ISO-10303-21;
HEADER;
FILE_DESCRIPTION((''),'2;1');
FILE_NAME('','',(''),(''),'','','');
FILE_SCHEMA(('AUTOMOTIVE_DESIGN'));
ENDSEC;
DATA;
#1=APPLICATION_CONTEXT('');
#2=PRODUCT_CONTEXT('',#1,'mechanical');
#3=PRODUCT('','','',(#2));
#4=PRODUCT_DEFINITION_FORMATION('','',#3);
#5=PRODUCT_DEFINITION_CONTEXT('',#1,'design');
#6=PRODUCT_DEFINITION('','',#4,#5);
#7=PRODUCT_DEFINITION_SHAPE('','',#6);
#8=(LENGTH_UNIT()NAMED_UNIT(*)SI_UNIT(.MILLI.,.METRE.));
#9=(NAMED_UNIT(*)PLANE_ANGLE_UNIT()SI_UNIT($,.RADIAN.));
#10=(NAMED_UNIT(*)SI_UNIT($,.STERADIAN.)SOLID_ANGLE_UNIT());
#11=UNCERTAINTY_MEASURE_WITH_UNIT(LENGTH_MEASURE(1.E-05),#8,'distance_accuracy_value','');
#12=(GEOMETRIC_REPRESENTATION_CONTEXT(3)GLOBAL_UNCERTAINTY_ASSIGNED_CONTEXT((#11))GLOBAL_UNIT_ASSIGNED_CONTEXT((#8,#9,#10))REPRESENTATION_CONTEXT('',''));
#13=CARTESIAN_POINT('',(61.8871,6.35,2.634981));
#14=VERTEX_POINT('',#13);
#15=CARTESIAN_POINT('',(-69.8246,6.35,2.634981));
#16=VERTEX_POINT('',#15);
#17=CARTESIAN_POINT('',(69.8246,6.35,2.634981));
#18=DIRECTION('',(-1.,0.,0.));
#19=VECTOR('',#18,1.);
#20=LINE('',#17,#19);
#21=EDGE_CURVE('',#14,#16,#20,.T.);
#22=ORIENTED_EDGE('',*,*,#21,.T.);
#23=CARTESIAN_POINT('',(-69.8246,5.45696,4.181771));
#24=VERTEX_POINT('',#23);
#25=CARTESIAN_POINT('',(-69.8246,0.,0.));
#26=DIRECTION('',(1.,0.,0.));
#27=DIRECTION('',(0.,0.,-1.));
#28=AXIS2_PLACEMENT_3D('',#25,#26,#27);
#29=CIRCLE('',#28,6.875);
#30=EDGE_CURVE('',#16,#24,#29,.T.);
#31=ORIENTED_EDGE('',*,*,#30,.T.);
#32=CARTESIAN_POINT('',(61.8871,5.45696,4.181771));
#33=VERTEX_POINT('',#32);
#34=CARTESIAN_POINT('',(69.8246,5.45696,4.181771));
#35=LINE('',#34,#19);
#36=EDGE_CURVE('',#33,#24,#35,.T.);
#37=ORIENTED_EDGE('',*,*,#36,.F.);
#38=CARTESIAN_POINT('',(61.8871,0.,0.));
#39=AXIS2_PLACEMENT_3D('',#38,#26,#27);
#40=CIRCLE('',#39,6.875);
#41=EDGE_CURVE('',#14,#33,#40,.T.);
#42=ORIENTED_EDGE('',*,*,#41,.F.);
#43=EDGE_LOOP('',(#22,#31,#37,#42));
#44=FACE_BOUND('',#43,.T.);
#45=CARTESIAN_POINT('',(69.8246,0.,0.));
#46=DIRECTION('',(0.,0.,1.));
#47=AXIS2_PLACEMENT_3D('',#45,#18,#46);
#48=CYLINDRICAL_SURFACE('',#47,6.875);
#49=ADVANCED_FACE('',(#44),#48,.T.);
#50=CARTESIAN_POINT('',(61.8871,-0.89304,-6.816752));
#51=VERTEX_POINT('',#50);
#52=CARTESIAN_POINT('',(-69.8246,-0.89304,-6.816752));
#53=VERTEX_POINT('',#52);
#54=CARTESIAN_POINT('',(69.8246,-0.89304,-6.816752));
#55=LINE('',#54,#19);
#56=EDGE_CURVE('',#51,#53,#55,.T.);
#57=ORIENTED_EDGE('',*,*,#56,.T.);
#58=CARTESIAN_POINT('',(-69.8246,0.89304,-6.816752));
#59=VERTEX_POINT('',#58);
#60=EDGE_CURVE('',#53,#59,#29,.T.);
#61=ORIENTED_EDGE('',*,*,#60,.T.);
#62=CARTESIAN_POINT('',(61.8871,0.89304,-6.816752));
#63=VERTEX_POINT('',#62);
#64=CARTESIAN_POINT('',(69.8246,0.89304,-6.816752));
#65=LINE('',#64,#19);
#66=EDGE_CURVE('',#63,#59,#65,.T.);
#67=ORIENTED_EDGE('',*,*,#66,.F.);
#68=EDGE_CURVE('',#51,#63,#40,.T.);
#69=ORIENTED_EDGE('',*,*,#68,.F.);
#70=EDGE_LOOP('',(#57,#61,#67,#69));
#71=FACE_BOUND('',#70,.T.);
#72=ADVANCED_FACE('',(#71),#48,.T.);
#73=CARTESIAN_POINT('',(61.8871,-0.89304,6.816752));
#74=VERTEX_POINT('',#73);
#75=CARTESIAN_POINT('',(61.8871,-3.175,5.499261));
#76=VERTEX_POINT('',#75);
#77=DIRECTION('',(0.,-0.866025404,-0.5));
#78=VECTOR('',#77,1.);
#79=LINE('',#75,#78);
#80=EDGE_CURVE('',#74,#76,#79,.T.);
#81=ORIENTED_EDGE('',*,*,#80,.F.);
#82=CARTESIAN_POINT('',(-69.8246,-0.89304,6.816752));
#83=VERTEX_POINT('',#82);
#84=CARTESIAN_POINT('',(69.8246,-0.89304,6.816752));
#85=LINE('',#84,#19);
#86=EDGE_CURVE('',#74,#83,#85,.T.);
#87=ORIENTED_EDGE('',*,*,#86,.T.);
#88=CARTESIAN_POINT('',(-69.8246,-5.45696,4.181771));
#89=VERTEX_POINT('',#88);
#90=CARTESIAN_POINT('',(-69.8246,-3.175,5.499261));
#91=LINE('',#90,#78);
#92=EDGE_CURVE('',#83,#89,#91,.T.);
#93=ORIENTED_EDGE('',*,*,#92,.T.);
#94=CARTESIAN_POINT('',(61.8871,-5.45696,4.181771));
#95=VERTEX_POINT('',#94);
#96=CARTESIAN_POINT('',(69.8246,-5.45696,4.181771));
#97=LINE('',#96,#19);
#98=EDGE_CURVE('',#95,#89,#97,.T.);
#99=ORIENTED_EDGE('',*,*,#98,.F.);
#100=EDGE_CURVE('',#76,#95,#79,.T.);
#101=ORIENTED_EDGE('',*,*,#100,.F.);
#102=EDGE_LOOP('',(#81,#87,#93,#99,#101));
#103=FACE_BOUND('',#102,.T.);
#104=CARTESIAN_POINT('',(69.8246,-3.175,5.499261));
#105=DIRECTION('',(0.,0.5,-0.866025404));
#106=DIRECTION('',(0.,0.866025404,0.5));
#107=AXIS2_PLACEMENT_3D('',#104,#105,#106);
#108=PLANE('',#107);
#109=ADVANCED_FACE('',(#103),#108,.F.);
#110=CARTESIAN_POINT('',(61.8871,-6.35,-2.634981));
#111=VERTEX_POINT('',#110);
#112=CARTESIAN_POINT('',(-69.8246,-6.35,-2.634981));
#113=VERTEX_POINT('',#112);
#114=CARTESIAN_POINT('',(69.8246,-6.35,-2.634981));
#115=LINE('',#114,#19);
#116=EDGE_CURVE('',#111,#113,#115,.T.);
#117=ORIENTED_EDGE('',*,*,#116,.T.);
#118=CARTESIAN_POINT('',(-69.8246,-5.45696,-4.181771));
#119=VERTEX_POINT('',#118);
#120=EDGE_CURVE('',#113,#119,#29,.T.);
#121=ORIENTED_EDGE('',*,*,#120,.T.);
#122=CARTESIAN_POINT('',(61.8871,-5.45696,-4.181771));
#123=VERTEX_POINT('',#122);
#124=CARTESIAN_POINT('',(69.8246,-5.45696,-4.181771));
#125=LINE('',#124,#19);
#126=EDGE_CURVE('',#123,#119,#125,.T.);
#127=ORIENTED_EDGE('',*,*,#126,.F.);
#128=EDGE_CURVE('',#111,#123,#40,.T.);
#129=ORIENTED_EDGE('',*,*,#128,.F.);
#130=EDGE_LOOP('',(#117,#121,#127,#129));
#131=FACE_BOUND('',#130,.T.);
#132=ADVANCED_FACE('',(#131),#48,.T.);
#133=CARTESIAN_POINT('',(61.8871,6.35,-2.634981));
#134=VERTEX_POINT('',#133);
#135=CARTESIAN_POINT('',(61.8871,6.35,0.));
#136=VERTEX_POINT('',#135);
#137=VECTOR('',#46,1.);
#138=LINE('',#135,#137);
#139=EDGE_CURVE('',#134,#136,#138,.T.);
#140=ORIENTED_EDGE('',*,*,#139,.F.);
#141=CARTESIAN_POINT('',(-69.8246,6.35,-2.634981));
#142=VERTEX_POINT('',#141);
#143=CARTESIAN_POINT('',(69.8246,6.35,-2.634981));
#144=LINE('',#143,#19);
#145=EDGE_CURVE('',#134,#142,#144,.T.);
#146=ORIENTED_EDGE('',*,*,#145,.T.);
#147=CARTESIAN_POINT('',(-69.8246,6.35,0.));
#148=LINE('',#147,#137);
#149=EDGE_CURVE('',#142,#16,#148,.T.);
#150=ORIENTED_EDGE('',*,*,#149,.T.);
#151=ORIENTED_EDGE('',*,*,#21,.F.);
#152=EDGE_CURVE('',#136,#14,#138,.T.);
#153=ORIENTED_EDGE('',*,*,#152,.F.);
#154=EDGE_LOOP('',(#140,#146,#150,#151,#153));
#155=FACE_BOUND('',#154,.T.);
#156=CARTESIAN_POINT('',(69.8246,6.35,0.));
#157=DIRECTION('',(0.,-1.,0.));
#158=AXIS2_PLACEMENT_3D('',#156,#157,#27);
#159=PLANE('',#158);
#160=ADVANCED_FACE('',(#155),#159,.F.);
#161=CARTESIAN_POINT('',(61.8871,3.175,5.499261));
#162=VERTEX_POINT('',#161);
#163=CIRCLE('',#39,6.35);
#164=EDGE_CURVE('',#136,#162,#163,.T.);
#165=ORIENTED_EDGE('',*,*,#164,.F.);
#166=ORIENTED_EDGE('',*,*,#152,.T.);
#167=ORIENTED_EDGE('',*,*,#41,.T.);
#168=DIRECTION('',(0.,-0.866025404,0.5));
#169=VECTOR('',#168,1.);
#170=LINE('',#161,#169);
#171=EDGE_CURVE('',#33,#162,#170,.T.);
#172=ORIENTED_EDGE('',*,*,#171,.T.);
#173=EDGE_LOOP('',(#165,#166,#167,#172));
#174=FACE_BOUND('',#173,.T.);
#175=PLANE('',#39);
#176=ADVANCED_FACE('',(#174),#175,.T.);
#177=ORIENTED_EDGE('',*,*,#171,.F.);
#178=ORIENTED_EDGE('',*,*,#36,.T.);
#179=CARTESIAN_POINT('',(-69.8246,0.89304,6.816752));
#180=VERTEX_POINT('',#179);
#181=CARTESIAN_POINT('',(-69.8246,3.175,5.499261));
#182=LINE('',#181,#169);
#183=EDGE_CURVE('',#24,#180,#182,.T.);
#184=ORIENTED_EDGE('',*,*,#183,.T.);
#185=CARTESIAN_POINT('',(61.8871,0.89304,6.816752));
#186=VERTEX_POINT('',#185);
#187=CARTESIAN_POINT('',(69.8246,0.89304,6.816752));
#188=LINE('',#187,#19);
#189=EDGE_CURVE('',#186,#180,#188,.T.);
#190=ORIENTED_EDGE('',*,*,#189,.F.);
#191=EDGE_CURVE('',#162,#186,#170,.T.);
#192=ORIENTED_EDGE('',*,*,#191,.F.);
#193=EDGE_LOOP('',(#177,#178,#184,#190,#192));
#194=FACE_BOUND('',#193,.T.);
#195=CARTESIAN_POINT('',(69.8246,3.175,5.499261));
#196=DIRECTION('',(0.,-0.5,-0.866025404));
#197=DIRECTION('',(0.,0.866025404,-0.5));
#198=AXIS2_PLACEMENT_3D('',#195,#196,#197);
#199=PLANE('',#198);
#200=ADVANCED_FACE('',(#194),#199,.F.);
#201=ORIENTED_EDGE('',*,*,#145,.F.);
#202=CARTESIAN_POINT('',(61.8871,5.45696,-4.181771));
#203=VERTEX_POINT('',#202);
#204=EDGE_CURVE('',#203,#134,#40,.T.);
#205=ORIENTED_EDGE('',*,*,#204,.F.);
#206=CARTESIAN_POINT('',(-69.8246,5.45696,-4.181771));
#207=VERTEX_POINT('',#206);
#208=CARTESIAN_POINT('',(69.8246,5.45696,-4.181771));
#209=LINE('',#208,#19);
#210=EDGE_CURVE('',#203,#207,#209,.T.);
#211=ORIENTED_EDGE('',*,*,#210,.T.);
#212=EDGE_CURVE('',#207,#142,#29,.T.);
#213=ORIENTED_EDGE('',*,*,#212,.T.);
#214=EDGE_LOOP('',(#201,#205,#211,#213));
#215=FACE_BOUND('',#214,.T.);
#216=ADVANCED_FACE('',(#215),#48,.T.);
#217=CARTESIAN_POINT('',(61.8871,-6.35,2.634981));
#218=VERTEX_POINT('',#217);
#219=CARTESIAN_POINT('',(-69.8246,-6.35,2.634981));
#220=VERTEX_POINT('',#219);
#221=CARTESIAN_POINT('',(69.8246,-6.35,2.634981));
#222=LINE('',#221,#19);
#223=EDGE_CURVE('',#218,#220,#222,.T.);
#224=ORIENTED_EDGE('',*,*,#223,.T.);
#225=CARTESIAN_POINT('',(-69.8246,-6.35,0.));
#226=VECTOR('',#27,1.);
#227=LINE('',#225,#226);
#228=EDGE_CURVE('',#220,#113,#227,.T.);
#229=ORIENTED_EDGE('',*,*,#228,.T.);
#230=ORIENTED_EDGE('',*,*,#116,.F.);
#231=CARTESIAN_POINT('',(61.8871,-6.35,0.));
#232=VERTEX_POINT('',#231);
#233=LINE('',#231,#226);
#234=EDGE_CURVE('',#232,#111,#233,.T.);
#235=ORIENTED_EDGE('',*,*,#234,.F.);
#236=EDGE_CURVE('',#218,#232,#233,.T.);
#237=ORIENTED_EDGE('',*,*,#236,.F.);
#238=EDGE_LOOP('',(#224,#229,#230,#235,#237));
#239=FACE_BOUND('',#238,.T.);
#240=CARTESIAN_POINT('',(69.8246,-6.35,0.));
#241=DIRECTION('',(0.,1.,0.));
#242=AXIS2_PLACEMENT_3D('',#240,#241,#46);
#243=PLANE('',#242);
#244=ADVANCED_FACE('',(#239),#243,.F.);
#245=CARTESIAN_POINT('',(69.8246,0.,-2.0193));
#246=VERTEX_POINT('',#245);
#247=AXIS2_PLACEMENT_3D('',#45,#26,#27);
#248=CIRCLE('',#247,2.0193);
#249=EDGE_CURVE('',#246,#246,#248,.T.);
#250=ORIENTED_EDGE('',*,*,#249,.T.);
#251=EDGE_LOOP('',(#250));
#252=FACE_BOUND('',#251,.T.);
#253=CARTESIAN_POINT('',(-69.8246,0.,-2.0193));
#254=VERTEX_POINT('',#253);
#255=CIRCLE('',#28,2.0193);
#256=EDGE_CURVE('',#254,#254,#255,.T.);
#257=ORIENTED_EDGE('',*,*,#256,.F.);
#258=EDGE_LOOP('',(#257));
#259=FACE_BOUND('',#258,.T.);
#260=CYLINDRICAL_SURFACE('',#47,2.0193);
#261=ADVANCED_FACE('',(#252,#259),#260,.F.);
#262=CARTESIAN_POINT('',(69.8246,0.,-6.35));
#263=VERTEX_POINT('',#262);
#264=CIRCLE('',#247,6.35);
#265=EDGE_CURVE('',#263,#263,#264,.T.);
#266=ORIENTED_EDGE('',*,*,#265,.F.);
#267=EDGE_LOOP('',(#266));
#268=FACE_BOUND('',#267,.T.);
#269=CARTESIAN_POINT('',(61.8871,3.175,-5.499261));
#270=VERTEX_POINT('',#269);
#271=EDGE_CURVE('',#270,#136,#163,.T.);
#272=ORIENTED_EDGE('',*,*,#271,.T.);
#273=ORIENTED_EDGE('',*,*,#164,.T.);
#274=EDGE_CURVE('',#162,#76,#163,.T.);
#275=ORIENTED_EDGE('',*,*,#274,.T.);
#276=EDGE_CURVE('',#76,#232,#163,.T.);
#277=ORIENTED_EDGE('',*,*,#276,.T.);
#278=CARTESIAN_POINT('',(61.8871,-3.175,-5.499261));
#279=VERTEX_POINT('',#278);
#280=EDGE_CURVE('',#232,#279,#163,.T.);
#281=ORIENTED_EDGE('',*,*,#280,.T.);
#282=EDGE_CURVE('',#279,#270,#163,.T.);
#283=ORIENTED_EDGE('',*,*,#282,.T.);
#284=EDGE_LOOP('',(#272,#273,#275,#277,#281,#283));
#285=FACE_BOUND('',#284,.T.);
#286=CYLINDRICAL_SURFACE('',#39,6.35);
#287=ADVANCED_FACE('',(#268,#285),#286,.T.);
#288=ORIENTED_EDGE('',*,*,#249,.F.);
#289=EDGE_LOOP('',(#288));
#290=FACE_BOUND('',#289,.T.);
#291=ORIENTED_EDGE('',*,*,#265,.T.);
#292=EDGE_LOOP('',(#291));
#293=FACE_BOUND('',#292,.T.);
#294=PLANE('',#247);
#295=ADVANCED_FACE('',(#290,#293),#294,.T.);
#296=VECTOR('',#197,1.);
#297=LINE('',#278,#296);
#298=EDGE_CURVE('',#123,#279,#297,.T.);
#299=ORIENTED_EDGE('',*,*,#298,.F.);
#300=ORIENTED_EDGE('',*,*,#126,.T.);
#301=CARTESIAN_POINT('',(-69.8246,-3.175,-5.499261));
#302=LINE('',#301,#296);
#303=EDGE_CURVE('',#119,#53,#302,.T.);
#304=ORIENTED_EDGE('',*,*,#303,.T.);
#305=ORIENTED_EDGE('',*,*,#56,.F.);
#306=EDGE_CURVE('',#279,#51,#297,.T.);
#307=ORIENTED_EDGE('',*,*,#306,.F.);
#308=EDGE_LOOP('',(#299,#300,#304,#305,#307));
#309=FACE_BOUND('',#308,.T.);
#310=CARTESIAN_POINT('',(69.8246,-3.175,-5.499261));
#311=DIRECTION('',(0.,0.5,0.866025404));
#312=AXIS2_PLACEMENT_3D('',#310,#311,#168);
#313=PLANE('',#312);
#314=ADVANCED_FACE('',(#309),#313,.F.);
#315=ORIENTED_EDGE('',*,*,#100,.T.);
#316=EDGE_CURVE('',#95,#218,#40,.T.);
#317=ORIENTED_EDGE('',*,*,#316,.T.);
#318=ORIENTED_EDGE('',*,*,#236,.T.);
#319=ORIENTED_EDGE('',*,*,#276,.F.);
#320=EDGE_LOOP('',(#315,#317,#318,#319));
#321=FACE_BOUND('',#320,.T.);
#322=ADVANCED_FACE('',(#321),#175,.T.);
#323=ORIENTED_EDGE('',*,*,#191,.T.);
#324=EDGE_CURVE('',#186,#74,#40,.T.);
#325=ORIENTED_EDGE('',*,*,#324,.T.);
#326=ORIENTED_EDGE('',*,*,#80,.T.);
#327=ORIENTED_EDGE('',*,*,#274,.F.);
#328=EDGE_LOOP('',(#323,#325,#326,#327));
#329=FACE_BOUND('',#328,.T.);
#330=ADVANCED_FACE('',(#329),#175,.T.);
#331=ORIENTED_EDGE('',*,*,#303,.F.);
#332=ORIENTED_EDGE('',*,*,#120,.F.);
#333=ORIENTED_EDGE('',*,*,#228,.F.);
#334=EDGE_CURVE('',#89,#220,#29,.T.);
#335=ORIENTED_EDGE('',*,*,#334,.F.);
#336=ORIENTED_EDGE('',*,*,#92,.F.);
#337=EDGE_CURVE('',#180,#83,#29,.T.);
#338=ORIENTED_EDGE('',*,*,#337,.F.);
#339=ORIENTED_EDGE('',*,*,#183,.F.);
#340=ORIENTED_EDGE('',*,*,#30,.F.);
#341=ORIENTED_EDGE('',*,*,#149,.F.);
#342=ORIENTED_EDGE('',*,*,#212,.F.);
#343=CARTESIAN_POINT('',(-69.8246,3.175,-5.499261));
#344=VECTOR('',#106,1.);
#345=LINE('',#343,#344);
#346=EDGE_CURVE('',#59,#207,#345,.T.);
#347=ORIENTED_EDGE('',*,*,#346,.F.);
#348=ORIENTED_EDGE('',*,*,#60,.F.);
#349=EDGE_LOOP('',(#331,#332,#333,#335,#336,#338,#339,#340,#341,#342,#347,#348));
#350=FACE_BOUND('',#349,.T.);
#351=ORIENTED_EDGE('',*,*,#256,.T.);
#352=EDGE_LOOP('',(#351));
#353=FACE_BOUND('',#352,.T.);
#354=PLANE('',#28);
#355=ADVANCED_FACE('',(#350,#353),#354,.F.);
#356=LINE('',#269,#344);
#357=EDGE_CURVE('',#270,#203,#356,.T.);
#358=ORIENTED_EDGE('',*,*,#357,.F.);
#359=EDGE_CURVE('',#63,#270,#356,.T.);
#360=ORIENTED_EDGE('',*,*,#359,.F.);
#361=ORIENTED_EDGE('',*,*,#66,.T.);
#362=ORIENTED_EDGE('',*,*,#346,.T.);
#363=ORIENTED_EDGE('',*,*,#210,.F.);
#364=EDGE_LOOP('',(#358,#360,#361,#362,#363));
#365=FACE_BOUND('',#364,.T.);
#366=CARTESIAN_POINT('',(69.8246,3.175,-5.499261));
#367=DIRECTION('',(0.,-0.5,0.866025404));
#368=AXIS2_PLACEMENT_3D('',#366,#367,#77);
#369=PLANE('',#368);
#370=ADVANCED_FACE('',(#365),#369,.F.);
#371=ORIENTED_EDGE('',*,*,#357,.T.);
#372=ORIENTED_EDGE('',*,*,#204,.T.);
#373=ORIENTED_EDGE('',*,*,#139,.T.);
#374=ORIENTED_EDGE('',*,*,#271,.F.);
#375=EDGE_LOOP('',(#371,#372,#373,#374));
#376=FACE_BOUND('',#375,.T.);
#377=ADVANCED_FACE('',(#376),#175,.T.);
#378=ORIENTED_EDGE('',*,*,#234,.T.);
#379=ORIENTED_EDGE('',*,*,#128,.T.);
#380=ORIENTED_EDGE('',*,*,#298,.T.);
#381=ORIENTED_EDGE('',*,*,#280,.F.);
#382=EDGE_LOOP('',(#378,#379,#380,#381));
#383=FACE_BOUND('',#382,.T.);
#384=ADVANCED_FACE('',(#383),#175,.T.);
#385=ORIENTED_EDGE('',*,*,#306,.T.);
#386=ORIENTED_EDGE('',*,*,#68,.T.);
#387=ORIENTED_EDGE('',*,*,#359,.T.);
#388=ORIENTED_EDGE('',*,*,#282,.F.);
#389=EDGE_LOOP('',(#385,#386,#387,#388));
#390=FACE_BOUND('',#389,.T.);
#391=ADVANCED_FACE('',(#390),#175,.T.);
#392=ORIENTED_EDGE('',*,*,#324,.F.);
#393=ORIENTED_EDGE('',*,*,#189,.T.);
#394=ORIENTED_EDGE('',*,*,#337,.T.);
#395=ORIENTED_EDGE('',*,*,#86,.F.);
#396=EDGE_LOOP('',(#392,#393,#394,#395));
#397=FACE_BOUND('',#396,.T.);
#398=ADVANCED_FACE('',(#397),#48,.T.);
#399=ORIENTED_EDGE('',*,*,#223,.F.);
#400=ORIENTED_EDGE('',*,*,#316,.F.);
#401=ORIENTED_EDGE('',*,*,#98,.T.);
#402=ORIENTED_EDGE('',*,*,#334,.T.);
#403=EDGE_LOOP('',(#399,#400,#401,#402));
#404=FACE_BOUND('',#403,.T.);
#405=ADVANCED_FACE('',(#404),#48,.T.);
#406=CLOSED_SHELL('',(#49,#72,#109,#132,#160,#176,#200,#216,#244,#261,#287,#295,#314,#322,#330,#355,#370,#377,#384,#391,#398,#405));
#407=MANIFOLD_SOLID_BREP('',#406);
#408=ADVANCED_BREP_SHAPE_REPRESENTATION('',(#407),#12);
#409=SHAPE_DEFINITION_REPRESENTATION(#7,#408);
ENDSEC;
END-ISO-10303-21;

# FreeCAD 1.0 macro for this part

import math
import FreeCAD as App
import Part
import Sketcher
from FreeCAD import Vector
Q = App.Units.Quantity

doc = App.newDocument("Part")
body = doc.addObject("PartDesign::Body", "Body")

# Sketch on YZ plane
sketch1 = doc.addObject("Sketcher::SketchObject", "Sketch")
body.addObject(sketch1)
sketch1.AttachmentSupport = (doc.YZ_Plane, [""])
sketch1.MapMode = "FlatFace"
sketch1.addGeometry([
    Part.ArcOfCircle(Part.Circle(Vector(0, 0, 0), Vector(0, 0, 1), 6.9), math.radians(-37.46), math.radians(-22.54)),  # 0
    Part.LineSegment(Vector(6.3, -2.6, 0), Vector(6.3, 2.6, 0)),  # 1
    Part.ArcOfCircle(Part.Circle(Vector(0, 0, 0), Vector(0, 0, 1), 6.9), math.radians(22.54), math.radians(37.46)),  # 2
    Part.LineSegment(Vector(5.5, 4.2, 0), Vector(0.9, 6.8, 0)),  # 3
    Part.ArcOfCircle(Part.Circle(Vector(0, 0, 0), Vector(0, 0, 1), 6.9), math.radians(82.54), math.radians(97.46)),  # 4
    Part.LineSegment(Vector(-0.9, 6.8, 0), Vector(-5.5, 4.2, 0)),  # 5
    Part.ArcOfCircle(Part.Circle(Vector(0, 0, 0), Vector(0, 0, 1), 6.9), math.radians(142.54), math.radians(157.46)),  # 6
    Part.LineSegment(Vector(-6.3, 2.6, 0), Vector(-6.3, -2.6, 0)),  # 7
    Part.ArcOfCircle(Part.Circle(Vector(0, 0, 0), Vector(0, 0, 1), 6.9), math.radians(-157.46), math.radians(-142.54)),  # 8
    Part.LineSegment(Vector(-5.5, -4.2, 0), Vector(-0.9, -6.8, 0)),  # 9
    Part.ArcOfCircle(Part.Circle(Vector(0, 0, 0), Vector(0, 0, 1), 6.9), math.radians(-97.46), math.radians(-90)),  # 10
    Part.ArcOfCircle(Part.Circle(Vector(0, 0, 0), Vector(0, 0, 1), 6.9), math.radians(-90), math.radians(-82.54)),  # 11
    Part.LineSegment(Vector(0.9, -6.8, 0), Vector(5.5, -4.2, 0)),  # 12
    Part.Circle(Vector(0, 0, 0), Vector(0, 0, 1), 2),  # 13
], False)
sketch1.addConstraint([
    Sketcher.Constraint("Coincident", 0, 2, 1, 1),
    Sketcher.Constraint("Coincident", 1, 2, 2, 1),
    Sketcher.Constraint("Coincident", 2, 2, 3, 1),
    Sketcher.Constraint("Coincident", 3, 2, 4, 1),
    Sketcher.Constraint("Coincident", 4, 2, 5, 1),
    Sketcher.Constraint("Coincident", 5, 2, 6, 1),
    Sketcher.Constraint("Coincident", 6, 2, 7, 1),
    Sketcher.Constraint("Coincident", 7, 2, 8, 1),
    Sketcher.Constraint("Coincident", 8, 2, 9, 1),
    Sketcher.Constraint("Coincident", 9, 2, 10, 1),
    Sketcher.Constraint("Tangent", 10, 2, 11, 1),
    Sketcher.Constraint("Coincident", 11, 2, 12, 1),
    Sketcher.Constraint("Coincident", 12, 2, 0, 1),
    Sketcher.Constraint("Vertical", 1),
    Sketcher.Constraint("Vertical", 7),
    Sketcher.Constraint("Coincident", 0, 3, -1, 1),
    Sketcher.Constraint("Coincident", 2, 3, -1, 1),
    Sketcher.Constraint("Coincident", 4, 3, -1, 1),
    Sketcher.Constraint("Coincident", 6, 3, -1, 1),
    Sketcher.Constraint("Coincident", 8, 3, -1, 1),
    Sketcher.Constraint("Coincident", 10, 3, -1, 1),
    Sketcher.Constraint("Coincident", 13, 3, -1, 1),
    Sketcher.Constraint("Equal", 0, 2),
    Sketcher.Constraint("Equal", 2, 4),
    Sketcher.Constraint("Equal", 4, 6),
    Sketcher.Constraint("Equal", 6, 8),
    Sketcher.Constraint("Equal", 8, 10),
    Sketcher.Constraint("Equal", 10, 11),
    Sketcher.Constraint("PointOnObject", 10, 2, -2),
    Sketcher.Constraint("Parallel", 3, 9),
    Sketcher.Constraint("Parallel", 5, 12),
    Sketcher.Constraint("Horizontal", 3, 2, 4, 2),
    Sketcher.Constraint("Horizontal", 2, 2, 5, 2),
    Sketcher.Constraint("Horizontal", 1, 2, 6, 2),
    Sketcher.Constraint("Horizontal", 9, 2, 11, 2),
    Sketcher.Constraint("Vertical", 5, 2, 8, 2),
    Sketcher.Constraint("Diameter", 13, Q("0.159 in")),
    Sketcher.Constraint("Angle", 3, Q("150 deg")),
    Sketcher.Constraint("DistanceX", -1, 1, 0, 2, Q("0.25 in")),
    Sketcher.Constraint("Radius", 0, 6.875),
    Sketcher.Constraint("Distance", 3, 5.269962),
])
pad1 = doc.addObject("PartDesign::Pad", "Pad")
body.addObject(pad1)
pad1.Profile = sketch1
pad1.Length = Q("5.498 in")
pad1.Midplane = True

# Sketch on YZ plane
sketch2 = doc.addObject("Sketcher::SketchObject", "Sketch001")
body.addObject(sketch2)
sketch2.AttachmentSupport = (doc.YZ_Plane, [""])
sketch2.MapMode = "FlatFace"
sketch2.AttachmentOffset = App.Placement(Vector(0, 0, 2.749 * 25.4), App.Rotation())
sketch2.addGeometry(Part.Circle(Vector(0, 0, 0), Vector(0, 0, 1), 2), False)
sketch2.addConstraint([
    Sketcher.Constraint("Coincident", 0, 3, -1, 1),
    Sketcher.Constraint("Diameter", 0, Q("0.159 in")),
])
doc.recompute()
hole = doc.addObject("PartDesign::Hole", "Hole")
body.addObject(hole)
hole.Profile = sketch2
hole.ThreadType = "None"
hole.Diameter = Q("0.159 in")
hole.DepthType = "Dimension"
hole.Depth = Q("0.6436 in")
hole.DrillPoint = "Angled"
hole.DrillPointAngle = 118

# Sketch on YZ plane
sketch3 = doc.addObject("Sketcher::SketchObject", "Sketch002")
body.addObject(sketch3)
sketch3.AttachmentSupport = (doc.YZ_Plane, [""])
sketch3.MapMode = "FlatFace"
sketch3.AttachmentOffset = App.Placement(Vector(0, 0, -2.749 * 25.4), App.Rotation())
sketch3.addGeometry(Part.Circle(Vector(0, 0, 0), Vector(0, 0, 1), 2), False)
sketch3.addConstraint([
    Sketcher.Constraint("Coincident", 0, 3, -1, 1),
    Sketcher.Constraint("Diameter", 0, Q("0.159 in")),
])
doc.recompute()
hole2 = doc.addObject("PartDesign::Hole", "Hole001")
body.addObject(hole2)
hole2.Profile = sketch3
hole2.ThreadType = "None"
hole2.Diameter = Q("0.159 in")
hole2.DepthType = "Dimension"
hole2.Depth = Q("0.6436 in")
hole2.DrillPoint = "Angled"
hole2.DrillPointAngle = 118

# Sketch on YZ plane
sketch4 = doc.addObject("Sketcher::SketchObject", "Sketch003")
body.addObject(sketch4)
sketch4.AttachmentSupport = (doc.YZ_Plane, [""])
sketch4.MapMode = "FlatFace"
sketch4.AttachmentOffset = App.Placement(Vector(0, 0, 2.749 * 25.4), App.Rotation())
sketch4.addGeometry([
    Part.Circle(Vector(0, 0, 0), Vector(0, 0, 1), 9),
    Part.Circle(Vector(0, 0, 0), Vector(0, 0, 1), 6),
], False)
sketch4.addConstraint([
    Sketcher.Constraint("Coincident", 0, 3, -1, 1),
    Sketcher.Constraint("Coincident", 1, 3, -1, 1),
    Sketcher.Constraint("Diameter", 0, Q("0.7 in")),
    Sketcher.Constraint("Diameter", 1, Q("0.5 in")),
])
pocket1 = doc.addObject("PartDesign::Pocket", "Pocket")
body.addObject(pocket1)
pocket1.Profile = sketch4
pocket1.Length = Q("0.3125 in")

doc.recompute()
